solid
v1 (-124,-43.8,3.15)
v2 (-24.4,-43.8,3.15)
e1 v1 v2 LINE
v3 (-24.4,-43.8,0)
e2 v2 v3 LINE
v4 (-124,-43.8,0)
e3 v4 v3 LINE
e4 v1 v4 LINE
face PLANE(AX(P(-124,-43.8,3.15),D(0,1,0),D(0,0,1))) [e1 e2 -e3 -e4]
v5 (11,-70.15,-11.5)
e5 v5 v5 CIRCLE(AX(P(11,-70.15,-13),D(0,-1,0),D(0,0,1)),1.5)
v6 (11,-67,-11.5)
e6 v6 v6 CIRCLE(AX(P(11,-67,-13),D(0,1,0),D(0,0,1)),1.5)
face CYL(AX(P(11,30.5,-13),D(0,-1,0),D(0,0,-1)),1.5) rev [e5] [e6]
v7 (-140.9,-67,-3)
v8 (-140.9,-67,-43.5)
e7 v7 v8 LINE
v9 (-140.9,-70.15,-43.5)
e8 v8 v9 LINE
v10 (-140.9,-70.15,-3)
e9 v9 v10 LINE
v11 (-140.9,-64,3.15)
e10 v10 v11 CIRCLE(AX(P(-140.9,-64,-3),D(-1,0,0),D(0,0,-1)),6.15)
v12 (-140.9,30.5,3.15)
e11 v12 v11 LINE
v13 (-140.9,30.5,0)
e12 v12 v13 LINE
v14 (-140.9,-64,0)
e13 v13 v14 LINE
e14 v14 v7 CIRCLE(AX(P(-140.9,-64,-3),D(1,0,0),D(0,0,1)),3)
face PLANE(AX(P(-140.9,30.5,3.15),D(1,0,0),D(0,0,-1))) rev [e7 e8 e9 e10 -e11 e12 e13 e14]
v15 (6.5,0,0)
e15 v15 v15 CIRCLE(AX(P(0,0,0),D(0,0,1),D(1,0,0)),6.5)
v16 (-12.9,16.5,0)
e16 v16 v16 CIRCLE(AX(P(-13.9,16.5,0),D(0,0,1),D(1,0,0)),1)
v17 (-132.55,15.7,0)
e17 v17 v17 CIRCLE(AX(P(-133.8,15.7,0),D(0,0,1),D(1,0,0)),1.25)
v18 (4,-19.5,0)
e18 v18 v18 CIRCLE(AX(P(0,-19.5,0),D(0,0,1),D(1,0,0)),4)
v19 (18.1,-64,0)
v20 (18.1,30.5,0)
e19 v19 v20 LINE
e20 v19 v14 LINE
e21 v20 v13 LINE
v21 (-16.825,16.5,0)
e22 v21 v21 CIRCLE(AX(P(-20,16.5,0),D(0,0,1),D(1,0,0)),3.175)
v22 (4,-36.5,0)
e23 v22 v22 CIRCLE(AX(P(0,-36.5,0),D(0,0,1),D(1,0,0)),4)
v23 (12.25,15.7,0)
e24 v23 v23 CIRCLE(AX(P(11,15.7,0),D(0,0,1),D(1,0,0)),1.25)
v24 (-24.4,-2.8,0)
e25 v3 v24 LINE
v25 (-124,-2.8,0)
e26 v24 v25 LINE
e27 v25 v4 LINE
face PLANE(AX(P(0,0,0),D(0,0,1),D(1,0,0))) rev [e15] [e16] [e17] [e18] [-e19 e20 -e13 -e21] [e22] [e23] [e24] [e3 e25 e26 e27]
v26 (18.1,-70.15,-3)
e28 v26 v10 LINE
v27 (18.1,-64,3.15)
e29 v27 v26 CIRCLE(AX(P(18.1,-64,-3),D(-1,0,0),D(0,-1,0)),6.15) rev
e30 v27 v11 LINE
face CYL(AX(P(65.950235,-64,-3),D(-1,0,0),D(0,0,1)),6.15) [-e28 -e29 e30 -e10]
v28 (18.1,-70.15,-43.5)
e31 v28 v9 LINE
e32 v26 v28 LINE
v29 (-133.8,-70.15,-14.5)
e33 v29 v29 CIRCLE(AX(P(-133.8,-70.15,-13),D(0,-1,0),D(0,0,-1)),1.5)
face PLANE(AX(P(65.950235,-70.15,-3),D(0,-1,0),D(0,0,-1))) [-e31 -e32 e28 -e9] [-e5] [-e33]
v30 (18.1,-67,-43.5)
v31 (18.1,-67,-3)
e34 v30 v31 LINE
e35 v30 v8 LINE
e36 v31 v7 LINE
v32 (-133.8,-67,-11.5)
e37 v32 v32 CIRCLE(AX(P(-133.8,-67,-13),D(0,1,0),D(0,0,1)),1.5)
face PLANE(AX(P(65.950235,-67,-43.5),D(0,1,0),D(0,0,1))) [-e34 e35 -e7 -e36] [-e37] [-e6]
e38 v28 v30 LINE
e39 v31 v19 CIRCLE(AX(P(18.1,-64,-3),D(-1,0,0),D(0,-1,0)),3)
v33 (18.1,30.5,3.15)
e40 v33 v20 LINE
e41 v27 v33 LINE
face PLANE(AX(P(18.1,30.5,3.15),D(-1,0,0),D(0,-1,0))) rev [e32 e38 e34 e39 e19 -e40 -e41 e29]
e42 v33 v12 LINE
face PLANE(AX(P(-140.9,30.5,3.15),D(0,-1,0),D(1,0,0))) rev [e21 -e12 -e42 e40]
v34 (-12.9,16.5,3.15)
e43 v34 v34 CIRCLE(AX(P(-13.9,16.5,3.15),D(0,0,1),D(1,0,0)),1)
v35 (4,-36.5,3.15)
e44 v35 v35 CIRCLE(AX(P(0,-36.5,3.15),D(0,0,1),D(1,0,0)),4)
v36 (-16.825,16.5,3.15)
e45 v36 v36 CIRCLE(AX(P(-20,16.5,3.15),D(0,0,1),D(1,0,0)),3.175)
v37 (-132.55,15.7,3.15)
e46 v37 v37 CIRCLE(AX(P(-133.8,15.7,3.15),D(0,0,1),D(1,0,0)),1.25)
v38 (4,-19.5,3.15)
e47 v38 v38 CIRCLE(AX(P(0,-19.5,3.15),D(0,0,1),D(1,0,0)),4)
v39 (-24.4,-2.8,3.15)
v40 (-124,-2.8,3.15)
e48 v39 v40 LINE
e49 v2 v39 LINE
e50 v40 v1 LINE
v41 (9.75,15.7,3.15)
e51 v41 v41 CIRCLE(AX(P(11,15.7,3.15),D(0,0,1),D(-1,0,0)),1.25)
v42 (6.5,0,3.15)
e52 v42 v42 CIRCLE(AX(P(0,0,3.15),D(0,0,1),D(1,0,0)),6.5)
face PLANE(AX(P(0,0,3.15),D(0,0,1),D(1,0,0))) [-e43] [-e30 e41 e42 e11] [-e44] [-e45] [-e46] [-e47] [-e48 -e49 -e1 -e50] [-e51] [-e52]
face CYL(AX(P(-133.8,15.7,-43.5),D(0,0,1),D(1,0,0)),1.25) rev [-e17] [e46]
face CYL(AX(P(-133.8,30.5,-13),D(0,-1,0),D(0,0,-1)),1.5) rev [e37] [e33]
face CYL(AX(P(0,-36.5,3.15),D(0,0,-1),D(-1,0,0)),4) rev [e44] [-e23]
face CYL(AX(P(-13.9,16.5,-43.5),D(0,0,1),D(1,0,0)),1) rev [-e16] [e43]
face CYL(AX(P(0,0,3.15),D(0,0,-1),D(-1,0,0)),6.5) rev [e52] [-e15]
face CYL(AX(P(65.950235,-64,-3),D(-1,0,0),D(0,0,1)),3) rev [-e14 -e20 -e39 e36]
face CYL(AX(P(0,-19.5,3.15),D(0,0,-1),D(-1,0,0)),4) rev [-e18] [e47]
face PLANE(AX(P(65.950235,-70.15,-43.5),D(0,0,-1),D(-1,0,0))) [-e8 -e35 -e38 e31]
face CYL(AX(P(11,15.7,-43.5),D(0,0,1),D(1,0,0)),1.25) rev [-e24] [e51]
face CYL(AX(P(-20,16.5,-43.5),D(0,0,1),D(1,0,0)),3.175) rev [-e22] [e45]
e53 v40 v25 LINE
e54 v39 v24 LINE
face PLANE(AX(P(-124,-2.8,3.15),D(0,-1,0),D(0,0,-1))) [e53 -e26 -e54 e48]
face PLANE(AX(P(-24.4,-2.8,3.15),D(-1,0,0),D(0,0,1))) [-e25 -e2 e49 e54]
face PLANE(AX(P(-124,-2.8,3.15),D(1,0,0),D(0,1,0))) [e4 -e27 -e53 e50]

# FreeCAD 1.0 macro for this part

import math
import FreeCAD as App
import Part
import Sketcher
from FreeCAD import Vector
Q = App.Units.Quantity

doc = App.newDocument("Part")
body = doc.addObject("PartDesign::Body", "Body")

sketch1 = body.newObject("Sketcher::SketchObject", "Sketch")
sketch1.AttachmentSupport = (doc.getObject("XY_Plane"), [""])
sketch1.MapMode = "FlatFace"
sketch1.addGeometry([
    Part.LineSegment(Vector(-140.9, 30.5, 0), Vector(-140.9, -59.5, 0)),
    Part.LineSegment(Vector(-140.9, -59.5, 0), Vector(18.1, -59.5, 0)),
    Part.LineSegment(Vector(18.1, -59.5, 0), Vector(18.1, 30.5, 0)),
    Part.LineSegment(Vector(18.1, 30.5, 0), Vector(-140.9, 30.5, 0)),
    Part.LineSegment(Vector(-24.4, -43.8, 0), Vector(-124, -43.8, 0)),
    Part.LineSegment(Vector(-124, -43.8, 0), Vector(-124, -2.8, 0)),
    Part.LineSegment(Vector(-124, -2.8, 0), Vector(-24.4, -2.8, 0)),
    Part.LineSegment(Vector(-24.4, -2.8, 0), Vector(-24.4, -43.8, 0)),
    Part.Circle(Vector(0, -36.5, 0), Vector(0, 0, 1), 4),
    Part.Circle(Vector(0, -19.5, 0), Vector(0, 0, 1), 4),
    Part.Circle(Vector(0, 0, 0), Vector(0, 0, 1), 6.5),
], False)
sketch1.addConstraint([
    Sketcher.Constraint("Coincident", 0, 2, 1, 1),
    Sketcher.Constraint("Coincident", 1, 2, 2, 1),
    Sketcher.Constraint("Coincident", 2, 2, 3, 1),
    Sketcher.Constraint("Coincident", 3, 2, 0, 1),
    Sketcher.Constraint("Coincident", 4, 2, 5, 1),
    Sketcher.Constraint("Coincident", 5, 2, 6, 1),
    Sketcher.Constraint("Coincident", 6, 2, 7, 1),
    Sketcher.Constraint("Coincident", 7, 2, 4, 1),
    Sketcher.Constraint("Vertical", 0),
    Sketcher.Constraint("Horizontal", 1),
    Sketcher.Constraint("Vertical", 2),
    Sketcher.Constraint("Horizontal", 3),
    Sketcher.Constraint("Horizontal", 4),
    Sketcher.Constraint("Vertical", 5),
    Sketcher.Constraint("Horizontal", 6),
    Sketcher.Constraint("Vertical", 7),
    Sketcher.Constraint("Coincident", 10, 3, -1, 1),
    Sketcher.Constraint("Equal", 8, 9),
    Sketcher.Constraint("PointOnObject", 8, 3, -2),
    Sketcher.Constraint("PointOnObject", 9, 3, -2),
    Sketcher.Constraint("Diameter", 8, Q("8 mm")),
    Sketcher.Constraint("Diameter", 10, Q("13 mm")),
    Sketcher.Constraint("DistanceX", 1, 1, 1, 2, Q("159 mm")),
    Sketcher.Constraint("DistanceY", 0, 2, 0, 1, Q("90 mm")),
    Sketcher.Constraint("DistanceY", 5, 1, 5, 2, Q("41 mm")),
    Sketcher.Constraint("DistanceX", 4, 2, 4, 1, Q("99.6 mm")),
    Sketcher.Constraint("DistanceX", 4, 2, -1, 1, Q("124 mm")),
    Sketcher.Constraint("DistanceY", 8, 3, 9, 3, Q("17 mm")),
    Sketcher.Constraint("DistanceY", 0, 2, 8, 3, Q("23 mm")),
    Sketcher.Constraint("DistanceY", 8, 3, -1, 1, Q("36.5 mm")),
    Sketcher.Constraint("DistanceX", 0, 2, -1, 1, Q("140.9 mm")),
    Sketcher.Constraint("DistanceY", 4, 2, -1, 1, Q("43.8 mm")),
])
pad1 = body.newObject("PartDesign::Pad", "Pad")
pad1.Profile = sketch1
pad1.Length = 3.15

sketch2 = body.newObject("Sketcher::SketchObject", "Sketch001")
sketch2.AttachmentSupport = (doc.getObject("YZ_Plane"), [""])
sketch2.MapMode = "FlatFace"
sketch2.AttachmentOffset = App.Placement(Vector(0, 0, -140.9), App.Rotation())
sketch2.addGeometry([
    Part.LineSegment(Vector(-59.5, 3.1, 0), Vector(-59.5, 0, 0)),
    Part.LineSegment(Vector(-59.5, 0, 0), Vector(-64, 0, 0)),
    Part.ArcOfCircle(Part.Circle(Vector(-64, -3, 0), Vector(0, 0, 1), 3), math.radians(90), math.radians(180)),
    Part.LineSegment(Vector(-67, -3, 0), Vector(-67, -43.5, 0)),
    Part.LineSegment(Vector(-67, -43.5, 0), Vector(-70.2, -43.5, 0)),
    Part.LineSegment(Vector(-70.2, -43.5, 0), Vector(-70.2, -3, 0)),
    Part.ArcOfCircle(Part.Circle(Vector(-64, -3, 0), Vector(0, 0, 1), 6.2), math.radians(90), math.radians(180)),
    Part.LineSegment(Vector(-64, 3.1, 0), Vector(-59.5, 3.1, 0)),
], False)
sketch2.addConstraint([
    Sketcher.Constraint("Coincident", 0, 2, 1, 1),
    Sketcher.Constraint("Tangent", 1, 2, 2, 1),
    Sketcher.Constraint("Tangent", 2, 2, 3, 1),
    Sketcher.Constraint("Coincident", 3, 2, 4, 1),
    Sketcher.Constraint("Coincident", 4, 2, 5, 1),
    Sketcher.Constraint("Tangent", 5, 2, 6, 2),
    Sketcher.Constraint("Tangent", 6, 1, 7, 1),
    Sketcher.Constraint("Coincident", 7, 2, 0, 1),
    Sketcher.Constraint("Vertical", 0),
    Sketcher.Constraint("Horizontal", 1),
    Sketcher.Constraint("Vertical", 3),
    Sketcher.Constraint("Horizontal", 4),
    Sketcher.Constraint("Vertical", 5),
    Sketcher.Constraint("Horizontal", 7),
    Sketcher.Constraint("Coincident", 6, 3, 2, 3),
    Sketcher.Constraint("PointOnObject", 0, 2, -1),
    Sketcher.Constraint("Radius", 2, Q("3 mm")),
    Sketcher.Constraint("Radius", 6, Q("6.15 mm")),
    Sketcher.Constraint("DistanceX", 1, 2, 1, 1, Q("4.5 mm")),
    Sketcher.Constraint("DistanceY", 3, 2, 3, 1, Q("40.5 mm")),
    Sketcher.Constraint("DistanceX", 2, 3, -1, 1, Q("64 mm")),
])
pad2 = body.newObject("PartDesign::Pad", "Pad001")
pad2.Profile = sketch2
pad2.Length = 159

sketch3 = body.newObject("Sketcher::SketchObject", "Sketch002")
sketch3.AttachmentSupport = (doc.getObject("XY_Plane"), [""])
sketch3.MapMode = "FlatFace"
sketch3.AttachmentOffset = App.Placement(Vector(0, 0, 3.15), App.Rotation())
sketch3.addGeometry([
    Part.Circle(Vector(-133.8, 15.7, 0), Vector(0, 0, 1), 1.2),
    Part.Circle(Vector(11, 15.7, 0), Vector(0, 0, 1), 1.2),
], False)
sketch3.addConstraint([
    Sketcher.Constraint("Equal", 0, 1),
    Sketcher.Constraint("Horizontal", 0, 3, 1, 3),
    Sketcher.Constraint("Diameter", 0, Q("2.5 mm")),
    Sketcher.Constraint("DistanceX", -1, 1, 1, 3, Q("11 mm")),
    Sketcher.Constraint("DistanceX", 0, 3, -1, 1, Q("133.8 mm")),
    Sketcher.Constraint("DistanceY", -1, 1, 0, 3, Q("15.7 mm")),
])
pocket1 = body.newObject("PartDesign::Pocket", "Pocket")
pocket1.Profile = sketch3
pocket1.Type = "ThroughAll"

sketch4 = body.newObject("Sketcher::SketchObject", "Sketch003")
sketch4.AttachmentSupport = (doc.getObject("XZ_Plane"), [""])
sketch4.MapMode = "FlatFace"
sketch4.AttachmentOffset = App.Placement(Vector(0, 0, 70.15), App.Rotation())
sketch4.addGeometry([
    Part.Circle(Vector(-133.8, -13, 0), Vector(0, 0, 1), 1.5),
    Part.Circle(Vector(11, -13, 0), Vector(0, 0, 1), 1.5),
], False)
sketch4.addConstraint([
    Sketcher.Constraint("Equal", 0, 1),
    Sketcher.Constraint("Horizontal", 0, 3, 1, 3),
    Sketcher.Constraint("Diameter", 0, Q("3 mm")),
    Sketcher.Constraint("DistanceY", 0, 3, -1, 1, Q("13 mm")),
    Sketcher.Constraint("DistanceX", -1, 1, 1, 3, Q("11 mm")),
    Sketcher.Constraint("DistanceX", 0, 3, -1, 1, Q("133.8 mm")),
])
pocket2 = body.newObject("PartDesign::Pocket", "Pocket001")
pocket2.Profile = sketch4
pocket2.Type = "ThroughAll"

sketch5 = body.newObject("Sketcher::SketchObject", "Sketch004")
sketch5.AttachmentSupport = (doc.getObject("XY_Plane"), [""])
sketch5.MapMode = "FlatFace"
sketch5.AttachmentOffset = App.Placement(Vector(0, 0, 3.15), App.Rotation())
sketch5.addGeometry([
    Part.Circle(Vector(-20, 16.5, 0), Vector(0, 0, 1), 3.2),
    Part.Circle(Vector(-13.9, 16.5, 0), Vector(0, 0, 1), 1),
], False)
sketch5.addConstraint([
    Sketcher.Constraint("Horizontal", 0, 3, 1, 3),
    Sketcher.Constraint("Diameter", 1, Q("2 mm")),
    Sketcher.Constraint("Diameter", 0, Q("6.35 mm")),
    Sketcher.Constraint("DistanceX", 0, 3, -1, 1, Q("20 mm")),
    Sketcher.Constraint("DistanceY", -1, 1, 0, 3, Q("16.5 mm")),
    Sketcher.Constraint("DistanceX", 1, 3, -1, 1, Q("13.9 mm")),
])
pocket3 = body.newObject("PartDesign::Pocket", "Pocket002")
pocket3.Profile = sketch5
pocket3.Type = "ThroughAll"

doc.recompute()
